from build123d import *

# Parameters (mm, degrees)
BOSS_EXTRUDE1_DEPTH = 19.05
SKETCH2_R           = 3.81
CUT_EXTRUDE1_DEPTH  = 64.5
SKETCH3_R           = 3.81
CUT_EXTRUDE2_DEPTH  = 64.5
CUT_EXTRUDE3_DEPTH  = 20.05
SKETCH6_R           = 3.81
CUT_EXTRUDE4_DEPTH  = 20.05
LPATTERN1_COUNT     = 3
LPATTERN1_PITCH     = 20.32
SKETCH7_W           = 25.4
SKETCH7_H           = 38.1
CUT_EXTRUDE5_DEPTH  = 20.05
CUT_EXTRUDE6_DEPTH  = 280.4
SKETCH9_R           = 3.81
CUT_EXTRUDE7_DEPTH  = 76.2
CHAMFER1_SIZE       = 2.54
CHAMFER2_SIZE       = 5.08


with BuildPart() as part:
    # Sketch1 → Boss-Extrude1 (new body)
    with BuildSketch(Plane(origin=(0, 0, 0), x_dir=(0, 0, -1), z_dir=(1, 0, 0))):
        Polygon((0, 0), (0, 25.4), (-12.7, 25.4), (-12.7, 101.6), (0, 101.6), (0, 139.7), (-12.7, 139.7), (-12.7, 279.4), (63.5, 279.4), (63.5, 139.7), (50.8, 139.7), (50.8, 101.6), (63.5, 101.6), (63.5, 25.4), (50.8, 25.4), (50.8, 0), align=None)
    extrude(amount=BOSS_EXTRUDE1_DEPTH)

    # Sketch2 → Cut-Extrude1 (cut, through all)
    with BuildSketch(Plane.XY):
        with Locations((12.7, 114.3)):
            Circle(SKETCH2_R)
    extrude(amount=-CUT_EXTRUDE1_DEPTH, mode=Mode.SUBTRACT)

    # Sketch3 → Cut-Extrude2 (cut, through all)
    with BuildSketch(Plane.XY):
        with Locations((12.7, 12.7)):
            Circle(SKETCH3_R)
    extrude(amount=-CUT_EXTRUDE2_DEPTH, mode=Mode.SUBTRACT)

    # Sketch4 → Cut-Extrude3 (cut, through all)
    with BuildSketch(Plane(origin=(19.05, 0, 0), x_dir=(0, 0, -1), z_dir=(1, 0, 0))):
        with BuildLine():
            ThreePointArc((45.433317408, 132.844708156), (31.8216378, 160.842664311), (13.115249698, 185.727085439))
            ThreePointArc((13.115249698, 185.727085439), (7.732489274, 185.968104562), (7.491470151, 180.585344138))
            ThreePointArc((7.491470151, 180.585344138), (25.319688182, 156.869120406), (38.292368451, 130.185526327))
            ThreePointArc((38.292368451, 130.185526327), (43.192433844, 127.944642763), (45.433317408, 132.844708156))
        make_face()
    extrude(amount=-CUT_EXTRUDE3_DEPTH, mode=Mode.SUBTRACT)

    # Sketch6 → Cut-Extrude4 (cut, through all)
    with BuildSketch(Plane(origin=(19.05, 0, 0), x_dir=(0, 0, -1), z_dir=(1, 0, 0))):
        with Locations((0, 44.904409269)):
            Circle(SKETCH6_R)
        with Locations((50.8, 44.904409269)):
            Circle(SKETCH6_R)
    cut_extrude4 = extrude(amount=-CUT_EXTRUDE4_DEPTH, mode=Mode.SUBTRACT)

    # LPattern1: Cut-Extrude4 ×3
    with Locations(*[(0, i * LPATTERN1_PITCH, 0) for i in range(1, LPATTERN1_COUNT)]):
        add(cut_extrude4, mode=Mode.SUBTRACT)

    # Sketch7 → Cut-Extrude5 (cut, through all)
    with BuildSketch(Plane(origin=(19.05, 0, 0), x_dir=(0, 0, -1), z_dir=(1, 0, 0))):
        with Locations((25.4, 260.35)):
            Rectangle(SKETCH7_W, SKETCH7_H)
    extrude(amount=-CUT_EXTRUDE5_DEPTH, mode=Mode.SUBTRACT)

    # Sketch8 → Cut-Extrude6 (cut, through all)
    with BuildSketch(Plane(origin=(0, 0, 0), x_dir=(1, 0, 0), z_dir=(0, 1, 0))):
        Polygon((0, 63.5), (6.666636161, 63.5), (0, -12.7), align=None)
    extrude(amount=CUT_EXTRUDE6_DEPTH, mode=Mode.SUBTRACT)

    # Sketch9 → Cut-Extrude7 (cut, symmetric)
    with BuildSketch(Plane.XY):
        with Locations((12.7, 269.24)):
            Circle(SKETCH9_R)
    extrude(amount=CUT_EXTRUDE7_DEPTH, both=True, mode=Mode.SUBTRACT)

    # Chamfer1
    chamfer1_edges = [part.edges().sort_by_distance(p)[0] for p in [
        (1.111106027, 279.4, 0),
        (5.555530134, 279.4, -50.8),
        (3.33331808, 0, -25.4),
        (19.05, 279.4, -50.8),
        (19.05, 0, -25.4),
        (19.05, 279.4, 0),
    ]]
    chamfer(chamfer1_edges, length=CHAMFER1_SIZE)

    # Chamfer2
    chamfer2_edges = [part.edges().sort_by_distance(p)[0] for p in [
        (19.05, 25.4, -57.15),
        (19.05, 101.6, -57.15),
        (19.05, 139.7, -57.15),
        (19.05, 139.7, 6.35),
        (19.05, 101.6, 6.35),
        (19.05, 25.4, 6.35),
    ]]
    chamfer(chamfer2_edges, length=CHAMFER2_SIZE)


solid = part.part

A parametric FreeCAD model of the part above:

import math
import FreeCAD as App
import Part
import Sketcher
from FreeCAD import Vector
Q = App.Units.Quantity


def edges_at(feature, points):
    """Names of the edges that pass closest to the given points."""
    edges = feature.Shape.Edges
    near = lambda p: min(range(len(edges)), key=lambda i: edges[i].distToShape(Part.Vertex(*p))[0])
    return sorted({f"Edge{near(p) + 1}" for p in points})

doc = App.newDocument("Part")
body = doc.addObject("PartDesign::Body", "Body")

# Sketch on YZ plane
sketch1 = body.newObject("Sketcher::SketchObject", "Sketch")
sketch1.AttachmentSupport = (doc.getObject("YZ_Plane"), [""])
sketch1.MapMode = "FlatFace"
sketch1.addGeometry(Part.LineSegment(Vector(25, 0, 0), Vector(0, 0, 0)), False)
sketch1.addGeometry(Part.LineSegment(Vector(0, 0, 0), Vector(0, -51, 0)), False)
sketch1.addGeometry(Part.LineSegment(Vector(0, -51, 0), Vector(25, -51, 0)), False)
sketch1.addGeometry(Part.LineSegment(Vector(25, -51, 0), Vector(25, -64, 0)), False)
sketch1.addGeometry(Part.LineSegment(Vector(25, -64, 0), Vector(102, -64, 0)), False)
sketch1.addGeometry(Part.LineSegment(Vector(102, -64, 0), Vector(102, -51, 0)), False)
sketch1.addGeometry(Part.LineSegment(Vector(102, -51, 0), Vector(140, -51, 0)), False)
sketch1.addGeometry(Part.LineSegment(Vector(140, -51, 0), Vector(140, -64, 0)), False)
sketch1.addGeometry(Part.LineSegment(Vector(140, -64, 0), Vector(279, -64, 0)), False)
sketch1.addGeometry(Part.LineSegment(Vector(279, -64, 0), Vector(279, 13, 0)), False)
sketch1.addGeometry(Part.LineSegment(Vector(279, 13, 0), Vector(140, 13, 0)), False)
sketch1.addGeometry(Part.LineSegment(Vector(140, 13, 0), Vector(140, 0, 0)), False)
sketch1.addGeometry(Part.LineSegment(Vector(140, 0, 0), Vector(102, 0, 0)), False)
sketch1.addGeometry(Part.LineSegment(Vector(102, 0, 0), Vector(102, 13, 0)), False)
sketch1.addGeometry(Part.LineSegment(Vector(102, 13, 0), Vector(25, 13, 0)), False)
sketch1.addGeometry(Part.LineSegment(Vector(25, 13, 0), Vector(25, 0, 0)), False)
sketch1.addConstraint(Sketcher.Constraint("Coincident", 0, 2, 1, 1))
sketch1.addConstraint(Sketcher.Constraint("Coincident", 1, 2, 2, 1))
sketch1.addConstraint(Sketcher.Constraint("Coincident", 2, 2, 3, 1))
sketch1.addConstraint(Sketcher.Constraint("Coincident", 3, 2, 4, 1))
sketch1.addConstraint(Sketcher.Constraint("Coincident", 4, 2, 5, 1))
sketch1.addConstraint(Sketcher.Constraint("Coincident", 5, 2, 6, 1))
sketch1.addConstraint(Sketcher.Constraint("Coincident", 6, 2, 7, 1))
sketch1.addConstraint(Sketcher.Constraint("Coincident", 7, 2, 8, 1))
sketch1.addConstraint(Sketcher.Constraint("Coincident", 8, 2, 9, 1))
sketch1.addConstraint(Sketcher.Constraint("Coincident", 9, 2, 10, 1))
sketch1.addConstraint(Sketcher.Constraint("Coincident", 10, 2, 11, 1))
sketch1.addConstraint(Sketcher.Constraint("Coincident", 11, 2, 12, 1))
sketch1.addConstraint(Sketcher.Constraint("Coincident", 12, 2, 13, 1))
sketch1.addConstraint(Sketcher.Constraint("Coincident", 13, 2, 14, 1))
sketch1.addConstraint(Sketcher.Constraint("Coincident", 14, 2, 15, 1))
sketch1.addConstraint(Sketcher.Constraint("Coincident", 15, 2, 0, 1))
sketch1.addConstraint(Sketcher.Constraint("Horizontal", 0))
sketch1.addConstraint(Sketcher.Constraint("Vertical", 1))
sketch1.addConstraint(Sketcher.Constraint("Horizontal", 2))
sketch1.addConstraint(Sketcher.Constraint("Vertical", 3))
sketch1.addConstraint(Sketcher.Constraint("Horizontal", 4))
sketch1.addConstraint(Sketcher.Constraint("Vertical", 5))
sketch1.addConstraint(Sketcher.Constraint("Horizontal", 6))
sketch1.addConstraint(Sketcher.Constraint("Vertical", 7))
sketch1.addConstraint(Sketcher.Constraint("Horizontal", 8))
sketch1.addConstraint(Sketcher.Constraint("Vertical", 9))
sketch1.addConstraint(Sketcher.Constraint("Horizontal", 10))
sketch1.addConstraint(Sketcher.Constraint("Vertical", 11))
sketch1.addConstraint(Sketcher.Constraint("Horizontal", 12))
sketch1.addConstraint(Sketcher.Constraint("Vertical", 13))
sketch1.addConstraint(Sketcher.Constraint("Horizontal", 14))
sketch1.addConstraint(Sketcher.Constraint("Vertical", 15))
sketch1.addConstraint(Sketcher.Constraint("Coincident", 0, 2, -1, 1))
sketch1.addConstraint(Sketcher.Constraint("PointOnObject", 11, 2, -1))
sketch1.addConstraint(Sketcher.Constraint("Horizontal", 2, 2, 5, 2))
sketch1.addConstraint(Sketcher.Constraint("Horizontal", 4, 2, 7, 2))
sketch1.addConstraint(Sketcher.Constraint("Horizontal", 10, 2, 13, 2))
sketch1.addConstraint(Sketcher.Constraint("Vertical", 7, 2, 10, 2))
sketch1.addConstraint(Sketcher.Constraint("Vertical", 5, 2, 12, 2))
sketch1.addConstraint(Sketcher.Constraint("Vertical", 3, 2, 14, 2))
sketch1.addConstraint(Sketcher.Constraint("Equal", 14, 9))
sketch1.addConstraint(Sketcher.Constraint("Equal", 7, 11))
sketch1.addConstraint(Sketcher.Constraint("DistanceX", 0, 2, 0, 1, Q("1 in")))
sketch1.addConstraint(Sketcher.Constraint("DistanceX", 4, 1, 4, 2, Q("3 in")))
sketch1.addConstraint(Sketcher.Constraint("DistanceY", 1, 2, 1, 1, Q("2 in")))
sketch1.addConstraint(Sketcher.Constraint("DistanceX", 6, 1, 6, 2, Q("1.5 in")))
sketch1.addConstraint(Sketcher.Constraint("DistanceX", 8, 1, 8, 2, Q("5.5 in")))
pad1 = body.newObject("PartDesign::Pad", "Pad")
pad1.Profile = sketch1
pad1.Length = Q("0.75 in")

# Sketch on XY plane
sketch2 = body.newObject("Sketcher::SketchObject", "Sketch001")
sketch2.AttachmentSupport = (doc.getObject("XY_Plane"), [""])
sketch2.MapMode = "FlatFace"
sketch2.addGeometry(Part.Circle(Vector(12.7, 114.3, 0), Vector(0, 0, 1), 3.8), False)
sketch2.addConstraint(Sketcher.Constraint("Diameter", 0, Q("0.3 in")))
sketch2.addConstraint(Sketcher.Constraint("DistanceX", -1, 1, 0, 3, Q("0.5 in")))
sketch2.addConstraint(Sketcher.Constraint("DistanceY", -1, 1, 0, 3, Q("4.5 in")))
pocket1 = body.newObject("PartDesign::Pocket", "Pocket")
pocket1.Profile = sketch2
pocket1.Type = "ThroughAll"

# Sketch on XY plane
sketch3 = body.newObject("Sketcher::SketchObject", "Sketch002")
sketch3.AttachmentSupport = (doc.getObject("XY_Plane"), [""])
sketch3.MapMode = "FlatFace"
sketch3.addGeometry(Part.Circle(Vector(12.7, 12.7, 0), Vector(0, 0, 1), 3.8), False)
sketch3.addConstraint(Sketcher.Constraint("Diameter", 0, Q("0.3 in")))
sketch3.addConstraint(Sketcher.Constraint("DistanceX", -1, 1, 0, 3, Q("0.5 in")))
sketch3.addConstraint(Sketcher.Constraint("DistanceY", -1, 1, 0, 3, Q("0.5 in")))
pocket2 = body.newObject("PartDesign::Pocket", "Pocket001")
pocket2.Profile = sketch3
pocket2.Type = "ThroughAll"

# Sketch on YZ plane
sketch4 = body.newObject("Sketcher::SketchObject", "Sketch003")
sketch4.AttachmentSupport = (doc.getObject("YZ_Plane"), [""])
sketch4.MapMode = "FlatFace"
sketch4.AttachmentOffset = App.Placement(Vector(0, 0, 0.75 * 25.4), App.Rotation())
sketch4.addGeometry(Part.ArcOfCircle(Part.Circle(Vector(76.2, 106.7, 0), Vector(0, 0, 1), 162.3), math.radians(-70), math.radians(-48)), False)
sketch4.addGeometry(Part.ArcOfCircle(Part.Circle(Vector(183.2, -10.3, 0), Vector(0, 0, 1), 3.8), math.radians(-48), math.radians(132)), False)
sketch4.addGeometry(Part.ArcOfCircle(Part.Circle(Vector(76.2, 106.7, 0), Vector(0, 0, 1), 154.7), math.radians(-70), math.radians(-48)), False)
sketch4.addGeometry(Part.ArcOfCircle(Part.Circle(Vector(131.5, -41.9, 0), Vector(0, 0, 1), 3.8), math.radians(110), math.radians(290)), False)
sketch4.addConstraint(Sketcher.Constraint("Tangent", 0, 2, 1, 1))
sketch4.addConstraint(Sketcher.Constraint("Tangent", 1, 2, 2, 2))
sketch4.addConstraint(Sketcher.Constraint("Tangent", 2, 1, 3, 1))
sketch4.addConstraint(Sketcher.Constraint("Tangent", 3, 2, 0, 1))
sketch4.addConstraint(Sketcher.Constraint("Coincident", 2, 3, 0, 3))
sketch4.addConstraint(Sketcher.Constraint("Radius", 1, Q("0.15 in")))
sketch4.addConstraint(Sketcher.Constraint("DistanceX", -1, 1, 0, 3, Q("3 in")))
sketch4.addConstraint(Sketcher.Constraint("DistanceY", -1, 1, 0, 3, Q("4.2 in")))
sketch4.addConstraint(Sketcher.Constraint("Radius", 0, Q("162.31785 mm")))
sketch4.addConstraint(Sketcher.Constraint("DistanceY", 2, 1, 1, 2, Q("30.800898 mm")))
sketch4.addConstraint(Sketcher.Constraint("DistanceY", 1, 3, -1, 1, Q("10.30336 mm")))
pocket3 = body.newObject("PartDesign::Pocket", "Pocket002")
pocket3.Profile = sketch4
pocket3.Type = "ThroughAll"

# Sketch on YZ plane
sketch5 = body.newObject("Sketcher::SketchObject", "Sketch004")
sketch5.AttachmentSupport = (doc.getObject("YZ_Plane"), [""])
sketch5.MapMode = "FlatFace"
sketch5.AttachmentOffset = App.Placement(Vector(0, 0, 0.75 * 25.4), App.Rotation())
sketch5.addGeometry(Part.Circle(Vector(44.9, 0, 0), Vector(0, 0, 1), 3.8), False)
sketch5.addGeometry(Part.Circle(Vector(44.9, -50.8, 0), Vector(0, 0, 1), 3.8), False)
sketch5.addConstraint(Sketcher.Constraint("Equal", 0, 1))
sketch5.addConstraint(Sketcher.Constraint("PointOnObject", 0, 3, -1))
sketch5.addConstraint(Sketcher.Constraint("Vertical", 0, 3, 1, 3))
sketch5.addConstraint(Sketcher.Constraint("Diameter", 0, Q("0.3 in")))
sketch5.addConstraint(Sketcher.Constraint("DistanceY", 1, 3, -1, 1, Q("2 in")))
sketch5.addConstraint(Sketcher.Constraint("DistanceX", -1, 1, 0, 3, Q("44.904409 mm")))
pocket4 = body.newObject("PartDesign::Pocket", "Pocket003")
pocket4.Profile = sketch5
pocket4.Type = "ThroughAll"
doc.recompute()

linearpattern = body.newObject("PartDesign::LinearPattern", "LinearPattern")
linearpattern.Originals = [pocket4]
linearpattern.Direction = (doc.getObject("Y_Axis"), [""])
linearpattern.Mode = "offset"
linearpattern.Offset = Q("0.8 in")
linearpattern.Occurrences = 3
body.Tip = linearpattern

# Sketch on YZ plane
sketch6 = body.newObject("Sketcher::SketchObject", "Sketch005")
sketch6.AttachmentSupport = (doc.getObject("YZ_Plane"), [""])
sketch6.MapMode = "FlatFace"
sketch6.AttachmentOffset = App.Placement(Vector(0, 0, 0.75 * 25.4), App.Rotation())
sketch6.addGeometry(Part.LineSegment(Vector(279, -13, 0), Vector(241, -13, 0)), False)
sketch6.addGeometry(Part.LineSegment(Vector(241, -13, 0), Vector(241, -38, 0)), False)
sketch6.addGeometry(Part.LineSegment(Vector(241, -38, 0), Vector(279, -38, 0)), False)
sketch6.addGeometry(Part.LineSegment(Vector(279, -38, 0), Vector(279, -13, 0)), False)
sketch6.addConstraint(Sketcher.Constraint("Coincident", 0, 2, 1, 1))
sketch6.addConstraint(Sketcher.Constraint("Coincident", 1, 2, 2, 1))
sketch6.addConstraint(Sketcher.Constraint("Coincident", 2, 2, 3, 1))
sketch6.addConstraint(Sketcher.Constraint("Coincident", 3, 2, 0, 1))
sketch6.addConstraint(Sketcher.Constraint("Horizontal", 0))
sketch6.addConstraint(Sketcher.Constraint("Vertical", 1))
sketch6.addConstraint(Sketcher.Constraint("Horizontal", 2))
sketch6.addConstraint(Sketcher.Constraint("Vertical", 3))
sketch6.addConstraint(Sketcher.Constraint("DistanceY", 1, 2, 1, 1, Q("1 in")))
sketch6.addConstraint(Sketcher.Constraint("DistanceX", 0, 2, 0, 1, Q("1.5 in")))
sketch6.addConstraint(Sketcher.Constraint("DistanceX", -1, 1, 2, 2, Q("11 in")))
sketch6.addConstraint(Sketcher.Constraint("DistanceY", 0, 2, -1, 1, Q("0.5 in")))
pocket5 = body.newObject("PartDesign::Pocket", "Pocket004")
pocket5.Profile = sketch6
pocket5.Type = "ThroughAll"

# Sketch on XZ plane
sketch7 = body.newObject("Sketcher::SketchObject", "Sketch006")
sketch7.AttachmentSupport = (doc.getObject("XZ_Plane"), [""])
sketch7.MapMode = "FlatFace"
sketch7.addGeometry(Part.LineSegment(Vector(7, -64, 0), Vector(0, -64, 0)), False)
sketch7.addGeometry(Part.LineSegment(Vector(0, -64, 0), Vector(0, 13, 0)), False)
sketch7.addGeometry(Part.LineSegment(Vector(0, 13, 0), Vector(7, -64, 0)), False)
sketch7.addConstraint(Sketcher.Constraint("Coincident", 0, 2, 1, 1))
sketch7.addConstraint(Sketcher.Constraint("Coincident", 1, 2, 2, 1))
sketch7.addConstraint(Sketcher.Constraint("Coincident", 2, 2, 0, 1))
sketch7.addConstraint(Sketcher.Constraint("Horizontal", 0))
sketch7.addConstraint(Sketcher.Constraint("Vertical", 1))
sketch7.addConstraint(Sketcher.Constraint("PointOnObject", 0, 2, -2))
sketch7.addConstraint(Sketcher.Constraint("DistanceY", 1, 1, 1, 2, Q("3 in")))
sketch7.addConstraint(Sketcher.Constraint("Angle", 2, Q("-85 deg")))
sketch7.addConstraint(Sketcher.Constraint("DistanceY", 0, 2, -1, 1, Q("2.5 in")))
pocket6 = body.newObject("PartDesign::Pocket", "Pocket005")
pocket6.Profile = sketch7
pocket6.Type = "ThroughAll"

# Sketch on XY plane
sketch8 = body.newObject("Sketcher::SketchObject", "Sketch007")
sketch8.AttachmentSupport = (doc.getObject("XY_Plane"), [""])
sketch8.MapMode = "FlatFace"
sketch8.addGeometry(Part.Circle(Vector(12.7, 269.2, 0), Vector(0, 0, 1), 3.8), False)
sketch8.addConstraint(Sketcher.Constraint("Diameter", 0, Q("0.3 in")))
sketch8.addConstraint(Sketcher.Constraint("DistanceX", -1, 1, 0, 3, Q("0.5 in")))
sketch8.addConstraint(Sketcher.Constraint("DistanceY", -1, 1, 0, 3, Q("10.6 in")))
pocket7 = body.newObject("PartDesign::Pocket", "Pocket006")
pocket7.Profile = sketch8
pocket7.Length = Q("6 in")
pocket7.Midplane = True
doc.recompute()

chamfer = body.newObject("PartDesign::Chamfer", "Chamfer")
chamfer.Base = (pocket7, edges_at(pocket7, [
    (1.111, 279.4, 0),
    (5.556, 279.4, -50.8),
    (3.333, 0, -25.4),
    (19.05, 279.4, -50.8),
    (19.05, 0, -25.4),
    (19.05, 279.4, 0),
]))
chamfer.Size = Q("0.1 in")
doc.recompute()

chamfer2 = body.newObject("PartDesign::Chamfer", "Chamfer001")
chamfer2.Base = (chamfer, edges_at(chamfer, [
    (19.05, 25.4, -57.15),
    (19.05, 101.6, -57.15),
    (19.05, 139.7, -57.15),
    (19.05, 139.7, 6.35),
    (19.05, 101.6, 6.35),
    (19.05, 25.4, 6.35),
]))
chamfer2.Size = Q("0.2 in")

doc.recompute()
